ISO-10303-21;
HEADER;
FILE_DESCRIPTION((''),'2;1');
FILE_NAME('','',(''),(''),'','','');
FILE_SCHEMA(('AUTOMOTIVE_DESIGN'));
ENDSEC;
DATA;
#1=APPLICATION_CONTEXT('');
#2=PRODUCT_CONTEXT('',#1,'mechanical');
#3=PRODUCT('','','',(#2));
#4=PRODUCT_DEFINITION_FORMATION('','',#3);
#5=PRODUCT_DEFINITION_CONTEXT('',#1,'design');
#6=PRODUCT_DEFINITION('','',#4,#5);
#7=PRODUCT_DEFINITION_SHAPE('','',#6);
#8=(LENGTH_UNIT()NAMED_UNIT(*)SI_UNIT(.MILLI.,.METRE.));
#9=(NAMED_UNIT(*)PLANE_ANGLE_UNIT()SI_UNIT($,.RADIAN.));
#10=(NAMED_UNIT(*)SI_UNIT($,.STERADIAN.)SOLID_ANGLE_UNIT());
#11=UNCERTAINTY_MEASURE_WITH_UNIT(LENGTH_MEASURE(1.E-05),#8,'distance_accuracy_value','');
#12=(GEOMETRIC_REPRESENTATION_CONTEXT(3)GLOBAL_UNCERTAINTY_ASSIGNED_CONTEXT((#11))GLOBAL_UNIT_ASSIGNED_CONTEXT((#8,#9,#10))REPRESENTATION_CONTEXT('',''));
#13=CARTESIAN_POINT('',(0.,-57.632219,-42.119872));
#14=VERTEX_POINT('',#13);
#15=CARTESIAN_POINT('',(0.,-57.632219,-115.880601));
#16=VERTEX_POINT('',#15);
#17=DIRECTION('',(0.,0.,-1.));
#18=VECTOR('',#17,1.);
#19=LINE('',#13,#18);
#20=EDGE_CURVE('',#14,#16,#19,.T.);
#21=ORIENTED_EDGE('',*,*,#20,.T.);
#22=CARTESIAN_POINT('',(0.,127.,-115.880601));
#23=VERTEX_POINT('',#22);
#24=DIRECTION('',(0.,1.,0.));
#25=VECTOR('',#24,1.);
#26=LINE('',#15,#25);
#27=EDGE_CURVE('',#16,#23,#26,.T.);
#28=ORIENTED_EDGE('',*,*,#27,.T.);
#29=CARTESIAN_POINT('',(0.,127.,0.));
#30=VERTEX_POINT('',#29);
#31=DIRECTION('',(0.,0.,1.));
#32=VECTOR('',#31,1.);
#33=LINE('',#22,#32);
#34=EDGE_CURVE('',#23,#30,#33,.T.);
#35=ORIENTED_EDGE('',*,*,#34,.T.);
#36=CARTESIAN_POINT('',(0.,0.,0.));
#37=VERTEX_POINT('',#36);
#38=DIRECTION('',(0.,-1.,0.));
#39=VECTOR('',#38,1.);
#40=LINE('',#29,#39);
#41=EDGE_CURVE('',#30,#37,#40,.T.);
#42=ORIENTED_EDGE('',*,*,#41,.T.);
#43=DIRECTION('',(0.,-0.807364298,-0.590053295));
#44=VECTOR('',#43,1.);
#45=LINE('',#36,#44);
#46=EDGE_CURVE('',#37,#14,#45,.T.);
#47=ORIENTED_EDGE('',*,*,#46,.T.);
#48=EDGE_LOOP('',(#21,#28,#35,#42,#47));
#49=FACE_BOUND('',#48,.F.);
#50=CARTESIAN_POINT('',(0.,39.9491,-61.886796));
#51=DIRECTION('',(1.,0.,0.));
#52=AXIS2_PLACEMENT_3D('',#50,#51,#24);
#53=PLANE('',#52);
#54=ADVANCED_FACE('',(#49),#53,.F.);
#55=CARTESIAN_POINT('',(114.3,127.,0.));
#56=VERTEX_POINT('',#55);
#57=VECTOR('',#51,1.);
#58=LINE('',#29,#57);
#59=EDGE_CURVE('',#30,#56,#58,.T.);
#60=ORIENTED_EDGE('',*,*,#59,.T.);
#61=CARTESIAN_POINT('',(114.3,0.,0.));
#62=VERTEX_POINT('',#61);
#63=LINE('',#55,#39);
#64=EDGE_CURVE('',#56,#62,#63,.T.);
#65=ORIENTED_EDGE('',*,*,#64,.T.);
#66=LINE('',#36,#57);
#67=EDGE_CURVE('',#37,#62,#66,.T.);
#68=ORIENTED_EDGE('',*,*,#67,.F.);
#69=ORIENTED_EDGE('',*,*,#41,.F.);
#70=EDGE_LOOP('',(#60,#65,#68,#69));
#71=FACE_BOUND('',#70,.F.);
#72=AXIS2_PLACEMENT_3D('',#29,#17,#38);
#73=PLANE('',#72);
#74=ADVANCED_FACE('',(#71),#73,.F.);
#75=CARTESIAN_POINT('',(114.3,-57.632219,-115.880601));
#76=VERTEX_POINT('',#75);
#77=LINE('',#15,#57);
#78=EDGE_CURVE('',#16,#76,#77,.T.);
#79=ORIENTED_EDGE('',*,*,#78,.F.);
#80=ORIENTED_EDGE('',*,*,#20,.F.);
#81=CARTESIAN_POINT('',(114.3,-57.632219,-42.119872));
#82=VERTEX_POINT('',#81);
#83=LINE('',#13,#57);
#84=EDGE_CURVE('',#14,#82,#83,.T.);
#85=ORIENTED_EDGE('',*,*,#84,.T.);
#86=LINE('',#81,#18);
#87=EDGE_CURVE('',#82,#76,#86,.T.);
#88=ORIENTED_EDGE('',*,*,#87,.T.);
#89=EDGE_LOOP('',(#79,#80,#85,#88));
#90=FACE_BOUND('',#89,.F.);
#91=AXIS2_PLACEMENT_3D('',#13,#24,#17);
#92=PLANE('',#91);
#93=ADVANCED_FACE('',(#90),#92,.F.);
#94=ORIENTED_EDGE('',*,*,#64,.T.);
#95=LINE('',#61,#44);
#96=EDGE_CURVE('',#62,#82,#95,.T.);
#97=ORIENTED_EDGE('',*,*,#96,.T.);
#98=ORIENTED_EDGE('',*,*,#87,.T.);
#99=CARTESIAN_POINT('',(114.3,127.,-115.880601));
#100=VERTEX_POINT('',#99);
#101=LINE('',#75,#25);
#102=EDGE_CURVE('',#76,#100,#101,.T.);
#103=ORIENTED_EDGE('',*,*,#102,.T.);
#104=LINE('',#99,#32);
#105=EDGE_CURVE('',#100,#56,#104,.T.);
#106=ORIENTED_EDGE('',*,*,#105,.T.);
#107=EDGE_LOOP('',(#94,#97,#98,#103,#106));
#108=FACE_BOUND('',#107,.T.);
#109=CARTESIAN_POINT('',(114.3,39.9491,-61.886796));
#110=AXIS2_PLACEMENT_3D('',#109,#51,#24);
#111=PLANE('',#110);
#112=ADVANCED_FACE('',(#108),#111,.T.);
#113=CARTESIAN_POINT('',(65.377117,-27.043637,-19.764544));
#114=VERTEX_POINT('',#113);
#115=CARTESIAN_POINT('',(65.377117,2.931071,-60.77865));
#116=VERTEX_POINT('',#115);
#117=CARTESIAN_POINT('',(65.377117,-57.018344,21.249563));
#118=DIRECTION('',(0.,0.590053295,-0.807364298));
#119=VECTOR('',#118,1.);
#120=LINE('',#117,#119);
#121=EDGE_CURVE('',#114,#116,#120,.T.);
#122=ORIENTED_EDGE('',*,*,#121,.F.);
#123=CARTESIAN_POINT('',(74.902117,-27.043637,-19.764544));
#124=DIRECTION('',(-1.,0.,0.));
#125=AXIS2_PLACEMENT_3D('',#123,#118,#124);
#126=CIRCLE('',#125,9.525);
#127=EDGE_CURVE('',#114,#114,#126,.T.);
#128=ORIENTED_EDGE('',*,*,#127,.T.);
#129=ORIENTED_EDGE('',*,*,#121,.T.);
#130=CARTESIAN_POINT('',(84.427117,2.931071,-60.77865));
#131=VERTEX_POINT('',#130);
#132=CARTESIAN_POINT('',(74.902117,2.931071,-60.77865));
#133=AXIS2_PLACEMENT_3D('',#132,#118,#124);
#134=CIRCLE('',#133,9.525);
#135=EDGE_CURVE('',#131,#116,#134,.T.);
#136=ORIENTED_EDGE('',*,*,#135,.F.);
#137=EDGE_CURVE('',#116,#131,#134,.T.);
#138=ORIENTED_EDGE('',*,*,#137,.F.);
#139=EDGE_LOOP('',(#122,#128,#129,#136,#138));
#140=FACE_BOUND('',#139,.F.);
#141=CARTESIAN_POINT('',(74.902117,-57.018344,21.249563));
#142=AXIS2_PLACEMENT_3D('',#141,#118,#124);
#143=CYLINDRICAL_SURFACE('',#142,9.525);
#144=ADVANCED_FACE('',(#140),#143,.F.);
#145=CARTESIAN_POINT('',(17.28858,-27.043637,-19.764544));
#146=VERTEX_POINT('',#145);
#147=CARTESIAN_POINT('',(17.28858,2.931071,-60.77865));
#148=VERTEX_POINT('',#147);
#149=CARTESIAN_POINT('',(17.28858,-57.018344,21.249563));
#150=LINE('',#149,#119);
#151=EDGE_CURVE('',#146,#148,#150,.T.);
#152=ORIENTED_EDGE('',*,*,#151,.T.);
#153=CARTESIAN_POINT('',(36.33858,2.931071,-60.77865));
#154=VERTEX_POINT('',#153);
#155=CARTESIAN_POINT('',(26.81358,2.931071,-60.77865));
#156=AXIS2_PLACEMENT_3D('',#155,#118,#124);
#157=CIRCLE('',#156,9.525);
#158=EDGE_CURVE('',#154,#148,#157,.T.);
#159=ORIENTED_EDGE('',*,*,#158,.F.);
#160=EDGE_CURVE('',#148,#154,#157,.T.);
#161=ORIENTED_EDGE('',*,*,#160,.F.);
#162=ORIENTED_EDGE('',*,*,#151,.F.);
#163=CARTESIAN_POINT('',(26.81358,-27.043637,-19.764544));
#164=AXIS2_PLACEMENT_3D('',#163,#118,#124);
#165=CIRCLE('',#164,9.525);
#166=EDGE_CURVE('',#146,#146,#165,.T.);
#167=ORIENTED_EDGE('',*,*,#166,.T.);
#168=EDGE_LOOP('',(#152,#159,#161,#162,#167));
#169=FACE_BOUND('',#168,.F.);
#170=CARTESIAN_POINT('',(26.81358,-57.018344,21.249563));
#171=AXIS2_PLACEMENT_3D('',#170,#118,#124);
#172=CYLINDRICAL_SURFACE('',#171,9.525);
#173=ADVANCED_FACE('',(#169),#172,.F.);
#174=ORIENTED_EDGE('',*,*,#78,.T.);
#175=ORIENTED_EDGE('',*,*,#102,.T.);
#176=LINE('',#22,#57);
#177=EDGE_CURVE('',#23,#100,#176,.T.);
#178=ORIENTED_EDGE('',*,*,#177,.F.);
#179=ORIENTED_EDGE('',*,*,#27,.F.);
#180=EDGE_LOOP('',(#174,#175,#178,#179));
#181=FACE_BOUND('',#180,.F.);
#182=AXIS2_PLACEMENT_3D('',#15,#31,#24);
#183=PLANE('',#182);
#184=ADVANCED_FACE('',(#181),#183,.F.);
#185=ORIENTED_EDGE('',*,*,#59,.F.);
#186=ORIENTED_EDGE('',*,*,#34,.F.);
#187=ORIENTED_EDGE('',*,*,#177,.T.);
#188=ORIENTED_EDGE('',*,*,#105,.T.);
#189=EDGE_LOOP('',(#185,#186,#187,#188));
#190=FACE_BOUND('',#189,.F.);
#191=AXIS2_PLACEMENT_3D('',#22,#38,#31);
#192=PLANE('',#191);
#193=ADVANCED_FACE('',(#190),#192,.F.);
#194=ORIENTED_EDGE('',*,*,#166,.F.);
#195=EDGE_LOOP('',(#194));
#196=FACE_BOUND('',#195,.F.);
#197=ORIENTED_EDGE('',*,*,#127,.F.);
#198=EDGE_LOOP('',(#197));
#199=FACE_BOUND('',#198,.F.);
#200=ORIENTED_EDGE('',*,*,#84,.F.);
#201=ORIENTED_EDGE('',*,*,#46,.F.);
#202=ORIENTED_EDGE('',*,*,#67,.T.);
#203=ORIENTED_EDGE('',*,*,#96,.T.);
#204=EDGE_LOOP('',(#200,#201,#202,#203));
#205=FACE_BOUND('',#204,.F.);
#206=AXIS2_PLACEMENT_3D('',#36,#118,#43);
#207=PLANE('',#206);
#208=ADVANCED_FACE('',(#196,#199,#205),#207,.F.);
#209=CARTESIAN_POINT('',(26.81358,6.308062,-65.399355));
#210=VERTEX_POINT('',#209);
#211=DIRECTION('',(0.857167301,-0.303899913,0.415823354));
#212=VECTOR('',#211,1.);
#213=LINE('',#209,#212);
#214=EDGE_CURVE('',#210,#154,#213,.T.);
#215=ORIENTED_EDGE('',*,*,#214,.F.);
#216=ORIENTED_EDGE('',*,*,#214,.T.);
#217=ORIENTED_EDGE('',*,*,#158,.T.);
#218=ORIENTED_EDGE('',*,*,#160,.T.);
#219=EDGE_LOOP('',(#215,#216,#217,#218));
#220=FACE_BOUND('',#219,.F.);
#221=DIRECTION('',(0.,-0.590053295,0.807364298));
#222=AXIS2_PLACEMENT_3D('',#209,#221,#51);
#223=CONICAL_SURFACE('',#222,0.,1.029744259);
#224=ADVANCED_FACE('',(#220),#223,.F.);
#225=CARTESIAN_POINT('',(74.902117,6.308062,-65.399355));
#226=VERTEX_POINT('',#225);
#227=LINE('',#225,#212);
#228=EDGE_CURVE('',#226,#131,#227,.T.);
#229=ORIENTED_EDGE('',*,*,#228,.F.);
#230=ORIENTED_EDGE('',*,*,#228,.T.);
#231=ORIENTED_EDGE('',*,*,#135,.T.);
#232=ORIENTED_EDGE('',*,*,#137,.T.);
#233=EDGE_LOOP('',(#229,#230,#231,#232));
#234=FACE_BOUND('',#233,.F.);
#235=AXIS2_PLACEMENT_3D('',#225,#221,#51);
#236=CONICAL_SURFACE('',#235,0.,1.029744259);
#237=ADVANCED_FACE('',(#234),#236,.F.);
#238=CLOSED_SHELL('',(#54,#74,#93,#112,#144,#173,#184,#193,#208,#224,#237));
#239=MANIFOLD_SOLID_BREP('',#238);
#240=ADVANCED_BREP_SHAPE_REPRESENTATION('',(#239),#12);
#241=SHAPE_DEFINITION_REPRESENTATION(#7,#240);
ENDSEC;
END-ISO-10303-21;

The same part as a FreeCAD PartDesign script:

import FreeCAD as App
import Part
import Sketcher

V = App.Vector
Q = App.Units.Quantity


def add_polygon(sketch, points):
    """Adds a closed chain of lines whose ends are joined by coincident constraints."""
    first, n = sketch.GeometryCount, len(points)
    for a, b in zip(points, points[1:] + points[:1]):
        sketch.addGeometry(Part.LineSegment(App.Vector(*a, 0), App.Vector(*b, 0)), False)
    for i in range(n):
        sketch.addConstraint(Sketcher.Constraint("Coincident", first + i, 2, first + (i + 1) % n, 1))

doc = App.newDocument("Part")
body = doc.addObject("PartDesign::Body", "Body")

sketch1 = body.newObject("Sketcher::SketchObject", "Sketch")
sketch1.AttachmentSupport = (doc.getObject("YZ_Plane"), [""])
sketch1.MapMode = "FlatFace"
add_polygon(sketch1, [(127, 0), (0, 0), (-58, -42), (-58, -116), (127, -116)])
sketch1.addConstraint([
    Sketcher.Constraint("Horizontal", 0),
    Sketcher.Constraint("Vertical", 2),
    Sketcher.Constraint("Horizontal", 3),
    Sketcher.Constraint("Vertical", 4),
    Sketcher.Constraint("Coincident", 0, 2, -1, 1),
    Sketcher.Constraint("DistanceX", 0, 2, 0, 1, Q("5 in")),
    Sketcher.Constraint("DistanceY", 4, 1, 4, 2, 115.880601),
    Sketcher.Constraint("DistanceX", 3, 1, 3, 2, 184.632219),
    Sketcher.Constraint("DistanceY", 2, 2, 2, 1, 73.760729),
])
pad1 = body.newObject("PartDesign::Pad", "Pad")
pad1.Profile = sketch1
pad1.Length = Q("4.5 in")

sketch2 = body.newObject("Sketcher::SketchObject", "Sketch001")
sketch2.Placement = App.Placement(V(0, 0, 0), App.Rotation(V(1, 0, 0), V(0, 0.807364298, 0.590053295), V(0, -0.590053295, 0.807364298), "ZXY"))
sketch2.addGeometry([
    Part.Circle(V(75, -33, 0), V(0, 0, 1), 10),
    Part.Circle(V(27, -33, 0), V(0, 0, 1), 10),
], False)
sketch2.addConstraint([
    Sketcher.Constraint("Equal", 0, 1),
    Sketcher.Constraint("Horizontal", 0, 3, 1, 3),
    Sketcher.Constraint("Diameter", 0, Q("0.75 in")),
    Sketcher.Constraint("DistanceY", 0, 3, -1, 1, 33.496201),
    Sketcher.Constraint("DistanceX", -1, 1, 1, 3, 26.81358),
    Sketcher.Constraint("DistanceX", -1, 1, 0, 3, 74.902117),
])
doc.recompute()
hole = body.newObject("PartDesign::Hole", "Hole")
hole.Profile = sketch2
hole.ThreadType = "None"
hole.Diameter = Q("0.75 in")
hole.DepthType = "Dimension"
hole.Depth = Q("2 in")
hole.DrillPoint = "Angled"
hole.DrillPointAngle = 118

doc.recompute()
